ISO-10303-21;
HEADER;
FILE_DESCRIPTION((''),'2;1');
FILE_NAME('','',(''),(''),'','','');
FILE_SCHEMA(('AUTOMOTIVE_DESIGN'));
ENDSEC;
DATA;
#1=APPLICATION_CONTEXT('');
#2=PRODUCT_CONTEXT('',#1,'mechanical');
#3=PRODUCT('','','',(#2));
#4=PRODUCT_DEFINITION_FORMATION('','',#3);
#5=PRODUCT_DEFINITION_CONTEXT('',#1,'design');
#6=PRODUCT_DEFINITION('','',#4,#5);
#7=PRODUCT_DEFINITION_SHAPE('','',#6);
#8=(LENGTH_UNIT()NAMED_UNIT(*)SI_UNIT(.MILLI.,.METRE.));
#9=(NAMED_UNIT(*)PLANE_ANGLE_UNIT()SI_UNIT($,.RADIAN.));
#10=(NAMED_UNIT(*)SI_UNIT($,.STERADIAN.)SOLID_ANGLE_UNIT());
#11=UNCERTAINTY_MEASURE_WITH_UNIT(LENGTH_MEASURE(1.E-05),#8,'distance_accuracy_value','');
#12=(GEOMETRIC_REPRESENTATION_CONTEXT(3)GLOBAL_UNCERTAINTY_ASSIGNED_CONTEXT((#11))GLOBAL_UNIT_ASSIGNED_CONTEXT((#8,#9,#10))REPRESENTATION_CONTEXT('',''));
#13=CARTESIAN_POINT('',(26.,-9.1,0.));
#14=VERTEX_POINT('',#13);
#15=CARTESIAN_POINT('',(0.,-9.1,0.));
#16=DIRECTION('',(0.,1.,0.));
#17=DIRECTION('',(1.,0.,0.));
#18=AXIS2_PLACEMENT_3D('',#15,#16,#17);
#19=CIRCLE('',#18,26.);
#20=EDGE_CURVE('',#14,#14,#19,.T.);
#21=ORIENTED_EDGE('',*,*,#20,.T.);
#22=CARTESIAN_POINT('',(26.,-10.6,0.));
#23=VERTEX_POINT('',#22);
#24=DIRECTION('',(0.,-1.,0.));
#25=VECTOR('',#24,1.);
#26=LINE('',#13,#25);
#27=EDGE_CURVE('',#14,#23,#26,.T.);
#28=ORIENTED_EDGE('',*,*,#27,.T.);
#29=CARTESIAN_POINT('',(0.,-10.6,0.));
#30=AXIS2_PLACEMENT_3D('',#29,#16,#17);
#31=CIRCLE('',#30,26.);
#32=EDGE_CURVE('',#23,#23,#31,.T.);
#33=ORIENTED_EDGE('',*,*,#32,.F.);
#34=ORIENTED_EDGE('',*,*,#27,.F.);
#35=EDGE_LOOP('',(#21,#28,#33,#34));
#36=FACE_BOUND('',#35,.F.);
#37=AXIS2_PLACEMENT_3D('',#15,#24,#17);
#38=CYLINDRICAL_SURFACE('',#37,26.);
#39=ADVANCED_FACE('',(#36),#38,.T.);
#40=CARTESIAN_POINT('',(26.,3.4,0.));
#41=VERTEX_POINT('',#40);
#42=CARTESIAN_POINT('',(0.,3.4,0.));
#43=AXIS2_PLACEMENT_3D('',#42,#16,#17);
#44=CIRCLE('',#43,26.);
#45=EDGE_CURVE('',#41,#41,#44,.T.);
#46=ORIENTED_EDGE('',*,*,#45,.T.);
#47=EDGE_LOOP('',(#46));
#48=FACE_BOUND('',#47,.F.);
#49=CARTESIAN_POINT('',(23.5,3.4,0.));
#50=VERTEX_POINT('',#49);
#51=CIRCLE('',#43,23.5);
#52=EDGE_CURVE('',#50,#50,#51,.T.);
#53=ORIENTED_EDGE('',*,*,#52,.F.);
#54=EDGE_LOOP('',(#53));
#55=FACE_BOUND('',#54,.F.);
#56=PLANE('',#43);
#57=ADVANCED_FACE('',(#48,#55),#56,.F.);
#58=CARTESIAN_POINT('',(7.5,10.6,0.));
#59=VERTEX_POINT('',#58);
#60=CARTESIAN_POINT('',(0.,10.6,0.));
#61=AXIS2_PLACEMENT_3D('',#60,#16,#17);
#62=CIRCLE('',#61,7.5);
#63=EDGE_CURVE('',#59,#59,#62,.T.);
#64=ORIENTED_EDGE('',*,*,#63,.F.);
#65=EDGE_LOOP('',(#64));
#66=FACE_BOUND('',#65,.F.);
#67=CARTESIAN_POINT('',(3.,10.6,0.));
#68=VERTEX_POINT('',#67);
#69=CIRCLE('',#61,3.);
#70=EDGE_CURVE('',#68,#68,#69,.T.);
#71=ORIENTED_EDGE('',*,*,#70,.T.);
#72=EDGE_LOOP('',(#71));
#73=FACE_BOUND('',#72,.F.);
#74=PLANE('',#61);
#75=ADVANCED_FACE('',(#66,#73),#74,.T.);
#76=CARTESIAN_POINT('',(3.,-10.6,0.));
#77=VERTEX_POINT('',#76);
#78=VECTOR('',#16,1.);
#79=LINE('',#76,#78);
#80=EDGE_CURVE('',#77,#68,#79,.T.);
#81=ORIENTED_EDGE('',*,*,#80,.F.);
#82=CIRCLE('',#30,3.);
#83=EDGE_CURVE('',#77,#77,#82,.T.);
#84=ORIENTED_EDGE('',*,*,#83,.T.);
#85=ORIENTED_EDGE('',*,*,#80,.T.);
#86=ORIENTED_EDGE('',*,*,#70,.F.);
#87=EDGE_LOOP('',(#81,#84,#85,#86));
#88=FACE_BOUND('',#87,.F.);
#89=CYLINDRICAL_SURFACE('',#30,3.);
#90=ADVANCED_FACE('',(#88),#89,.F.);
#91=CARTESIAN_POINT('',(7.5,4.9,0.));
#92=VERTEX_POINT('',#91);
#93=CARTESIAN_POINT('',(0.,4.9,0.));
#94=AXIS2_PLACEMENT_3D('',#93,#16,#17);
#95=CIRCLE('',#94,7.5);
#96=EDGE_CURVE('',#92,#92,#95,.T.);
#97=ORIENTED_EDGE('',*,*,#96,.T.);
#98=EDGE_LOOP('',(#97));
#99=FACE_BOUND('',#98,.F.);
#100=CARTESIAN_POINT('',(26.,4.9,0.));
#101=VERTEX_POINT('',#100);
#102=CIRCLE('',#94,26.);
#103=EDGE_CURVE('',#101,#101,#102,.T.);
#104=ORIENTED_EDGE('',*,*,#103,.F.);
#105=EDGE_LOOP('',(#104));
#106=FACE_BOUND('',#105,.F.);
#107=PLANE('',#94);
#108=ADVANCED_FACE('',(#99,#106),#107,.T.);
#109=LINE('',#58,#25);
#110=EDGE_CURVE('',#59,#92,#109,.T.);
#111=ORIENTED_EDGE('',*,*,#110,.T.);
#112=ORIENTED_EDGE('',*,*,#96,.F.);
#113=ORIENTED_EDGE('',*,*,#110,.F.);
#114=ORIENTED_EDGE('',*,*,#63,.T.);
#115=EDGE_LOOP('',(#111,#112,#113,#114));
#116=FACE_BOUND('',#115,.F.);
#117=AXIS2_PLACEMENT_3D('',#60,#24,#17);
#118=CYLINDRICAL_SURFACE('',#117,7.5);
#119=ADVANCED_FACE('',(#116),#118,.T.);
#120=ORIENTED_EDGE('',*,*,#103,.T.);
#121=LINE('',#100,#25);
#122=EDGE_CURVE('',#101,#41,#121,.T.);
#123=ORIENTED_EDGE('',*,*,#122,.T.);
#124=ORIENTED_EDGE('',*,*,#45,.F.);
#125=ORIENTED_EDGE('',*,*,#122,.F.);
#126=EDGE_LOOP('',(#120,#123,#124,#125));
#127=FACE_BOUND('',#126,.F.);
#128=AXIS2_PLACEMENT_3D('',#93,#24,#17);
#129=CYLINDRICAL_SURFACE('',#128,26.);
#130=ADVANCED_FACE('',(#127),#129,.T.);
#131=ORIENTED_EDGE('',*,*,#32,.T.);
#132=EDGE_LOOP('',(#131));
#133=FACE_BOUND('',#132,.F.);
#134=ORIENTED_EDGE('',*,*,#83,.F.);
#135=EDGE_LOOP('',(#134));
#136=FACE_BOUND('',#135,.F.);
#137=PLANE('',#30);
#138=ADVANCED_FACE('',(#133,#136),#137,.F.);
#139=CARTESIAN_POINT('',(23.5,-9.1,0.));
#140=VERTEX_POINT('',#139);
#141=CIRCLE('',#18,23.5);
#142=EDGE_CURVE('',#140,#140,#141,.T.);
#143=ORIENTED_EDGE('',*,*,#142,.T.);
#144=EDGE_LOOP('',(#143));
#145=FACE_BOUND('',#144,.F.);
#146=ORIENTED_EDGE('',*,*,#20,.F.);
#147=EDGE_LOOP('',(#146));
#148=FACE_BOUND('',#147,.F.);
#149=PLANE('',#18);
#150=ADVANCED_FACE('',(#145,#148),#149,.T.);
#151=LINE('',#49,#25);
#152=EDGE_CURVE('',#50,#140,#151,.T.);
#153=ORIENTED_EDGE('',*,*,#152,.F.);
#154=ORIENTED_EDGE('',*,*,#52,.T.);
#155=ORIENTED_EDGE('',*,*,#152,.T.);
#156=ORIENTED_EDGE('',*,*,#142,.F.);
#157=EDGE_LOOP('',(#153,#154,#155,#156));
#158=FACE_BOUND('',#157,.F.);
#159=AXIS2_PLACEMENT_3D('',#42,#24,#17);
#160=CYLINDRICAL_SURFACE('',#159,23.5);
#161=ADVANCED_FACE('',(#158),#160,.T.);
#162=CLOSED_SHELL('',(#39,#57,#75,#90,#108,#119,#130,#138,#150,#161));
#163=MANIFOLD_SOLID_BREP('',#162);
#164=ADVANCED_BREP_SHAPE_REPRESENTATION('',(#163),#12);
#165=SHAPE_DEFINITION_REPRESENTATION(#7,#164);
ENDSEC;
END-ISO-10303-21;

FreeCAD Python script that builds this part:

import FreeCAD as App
import Part
import Sketcher

doc = App.newDocument("Part")
params = doc.addObject("Spreadsheet::Sheet", "Params")
for row, (alias, value) in enumerate([
    ("sketch1_width", "23 mm"),
    ("sketch1_width2", "2.5 mm"),
    ("sketch1_width3", "18.5 mm"),
    ("sketch1_height", "21.2 mm"),
    ("sketch1_height2", "1.5 mm"),
    ("revolution_angle", "360 deg"),
], start=1):
    params.set(f"A{row}", alias)
    params.set(f"B{row}", "=" + value)
    params.setAlias(f"B{row}", alias)

body = doc.addObject("PartDesign::Body", "Body")

sketch1 = body.newObject("Sketcher::SketchObject", "Sketch")
sketch1.AttachmentSupport = (doc.getObject("XY_Plane"), [""])
sketch1.MapMode = "FlatFace"
sketch1.addGeometry([
    Part.LineSegment(App.Vector(3, 10.6, 0), App.Vector(3, -10.6, 0)),
    Part.LineSegment(App.Vector(3, -10.6, 0), App.Vector(26, -10.6, 0)),
    Part.LineSegment(App.Vector(26, -10.6, 0), App.Vector(26, -9.1, 0)),
    Part.LineSegment(App.Vector(26, -9.1, 0), App.Vector(23.5, -9.1, 0)),
    Part.LineSegment(App.Vector(23.5, -9.1, 0), App.Vector(23.5, 3.4, 0)),
    Part.LineSegment(App.Vector(23.5, 3.4, 0), App.Vector(26, 3.4, 0)),
    Part.LineSegment(App.Vector(26, 3.4, 0), App.Vector(26, 4.9, 0)),
    Part.LineSegment(App.Vector(26, 4.9, 0), App.Vector(7.5, 4.9, 0)),
    Part.LineSegment(App.Vector(7.5, 4.9, 0), App.Vector(7.5, 10.6, 0)),
    Part.LineSegment(App.Vector(7.5, 10.6, 0), App.Vector(3, 10.6, 0)),
], False)
sketch1.addConstraint([
    Sketcher.Constraint("Coincident", 0, 2, 1, 1),
    Sketcher.Constraint("Coincident", 1, 2, 2, 1),
    Sketcher.Constraint("Coincident", 2, 2, 3, 1),
    Sketcher.Constraint("Coincident", 3, 2, 4, 1),
    Sketcher.Constraint("Coincident", 4, 2, 5, 1),
    Sketcher.Constraint("Coincident", 5, 2, 6, 1),
    Sketcher.Constraint("Coincident", 6, 2, 7, 1),
    Sketcher.Constraint("Coincident", 7, 2, 8, 1),
    Sketcher.Constraint("Coincident", 8, 2, 9, 1),
    Sketcher.Constraint("Coincident", 9, 2, 0, 1),
    Sketcher.Constraint("Vertical", 0),
    Sketcher.Constraint("Horizontal", 1),
    Sketcher.Constraint("Vertical", 2),
    Sketcher.Constraint("Horizontal", 3),
    Sketcher.Constraint("Vertical", 4),
    Sketcher.Constraint("Horizontal", 5),
    Sketcher.Constraint("Vertical", 6),
    Sketcher.Constraint("Horizontal", 7),
    Sketcher.Constraint("Vertical", 8),
    Sketcher.Constraint("Horizontal", 9),
    Sketcher.Constraint("Vertical", 2, 2, 5, 2),
    Sketcher.Constraint("Equal", 2, 6),
    Sketcher.Constraint("DistanceX", 1, 1, 1, 2, 23.0),
    Sketcher.Constraint("DistanceX", 3, 2, 3, 1, 2.5),
    Sketcher.Constraint("DistanceX", 7, 2, 7, 1, 18.5),
    Sketcher.Constraint("DistanceY", 0, 2, 0, 1, 21.2),
    Sketcher.Constraint("DistanceY", 2, 1, 2, 2, 1.5),
    Sketcher.Constraint("DistanceY", 4, 1, 4, 2, 12.5),
    Sketcher.Constraint("DistanceX", -1, 1, 0, 2, 3.0),
    Sketcher.Constraint("DistanceY", 0, 2, -1, 1, 10.6),
])
sketch1.setExpression("Constraints[22]", "Params.sketch1_width")
sketch1.setExpression("Constraints[23]", "Params.sketch1_width2")
sketch1.setExpression("Constraints[24]", "Params.sketch1_width3")
sketch1.setExpression("Constraints[25]", "Params.sketch1_height")
sketch1.setExpression("Constraints[26]", "Params.sketch1_height2")
revolution = body.newObject("PartDesign::Revolution", "Revolution")
revolution.Profile = sketch1
revolution.ReferenceAxis = (sketch1, ["V_Axis"])
revolution.setExpression("Angle", "Params.revolution_angle")

doc.recompute()
